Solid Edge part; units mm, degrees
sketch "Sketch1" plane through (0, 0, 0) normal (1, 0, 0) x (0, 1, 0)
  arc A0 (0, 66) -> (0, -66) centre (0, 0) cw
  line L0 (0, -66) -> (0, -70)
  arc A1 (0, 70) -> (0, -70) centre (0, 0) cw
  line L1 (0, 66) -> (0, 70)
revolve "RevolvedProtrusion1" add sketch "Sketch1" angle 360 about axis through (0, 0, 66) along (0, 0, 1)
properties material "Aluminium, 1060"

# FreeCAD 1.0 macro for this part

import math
import FreeCAD as App
import Part
import Sketcher
Q = App.Units.Quantity

doc = App.newDocument("Part")
params = doc.addObject("Spreadsheet::Sheet", "Params")
for row, (alias, value) in enumerate([
    ("sketch1_radius", "66 mm"),
    ("sketch1_radius2", "70 mm"),
    ("revolution_angle", "360 deg"),
], start=1):
    params.set(f"A{row}", alias)
    params.set(f"B{row}", "=" + value)
    params.setAlias(f"B{row}", alias)

body = doc.addObject("PartDesign::Body", "Body")

sketch1 = doc.addObject("Sketcher::SketchObject", "Sketch")
body.addObject(sketch1)
sketch1.AttachmentSupport = (doc.YZ_Plane, [""])
sketch1.MapMode = "FlatFace"
sketch1.addGeometry([
    Part.LineSegment(App.Vector(0, 70, 0), App.Vector(0, 66, 0)),
    Part.ArcOfCircle(Part.Circle(App.Vector(0, 0, 0), App.Vector(0, 0, 1), 66), math.radians(-90), math.radians(90)),
    Part.LineSegment(App.Vector(0, -66, 0), App.Vector(0, -70, 0)),
    Part.ArcOfCircle(Part.Circle(App.Vector(0, 0, 0), App.Vector(0, 0, 1), 70), math.radians(-90), math.radians(90)),
], False)
sketch1.addConstraint([
    Sketcher.Constraint("Coincident", 0, 2, 1, 2),
    Sketcher.Constraint("Coincident", 1, 1, 2, 1),
    Sketcher.Constraint("Coincident", 2, 2, 3, 1),
    Sketcher.Constraint("Coincident", 3, 2, 0, 1),
    Sketcher.Constraint("Vertical", 0),
    Sketcher.Constraint("Vertical", 2),
    Sketcher.Constraint("Coincident", 1, 3, -1, 1),
    Sketcher.Constraint("Coincident", 3, 3, -1, 1),
    Sketcher.Constraint("PointOnObject", 0, 2, -2),
    Sketcher.Constraint("PointOnObject", 1, 1, -2),
    Sketcher.Constraint("Radius", 1, Q("66 mm")),
    Sketcher.Constraint("Radius", 3, Q("70 mm")),
])
sketch1.setExpression("Constraints[10]", "Params.sketch1_radius")
sketch1.setExpression("Constraints[11]", "Params.sketch1_radius2")
revolution = doc.addObject("PartDesign::Revolution", "Revolution")
body.addObject(revolution)
revolution.Profile = sketch1
revolution.ReferenceAxis = (sketch1, ["V_Axis"])
revolution.setExpression("Angle", "Params.revolution_angle")

doc.recompute()
